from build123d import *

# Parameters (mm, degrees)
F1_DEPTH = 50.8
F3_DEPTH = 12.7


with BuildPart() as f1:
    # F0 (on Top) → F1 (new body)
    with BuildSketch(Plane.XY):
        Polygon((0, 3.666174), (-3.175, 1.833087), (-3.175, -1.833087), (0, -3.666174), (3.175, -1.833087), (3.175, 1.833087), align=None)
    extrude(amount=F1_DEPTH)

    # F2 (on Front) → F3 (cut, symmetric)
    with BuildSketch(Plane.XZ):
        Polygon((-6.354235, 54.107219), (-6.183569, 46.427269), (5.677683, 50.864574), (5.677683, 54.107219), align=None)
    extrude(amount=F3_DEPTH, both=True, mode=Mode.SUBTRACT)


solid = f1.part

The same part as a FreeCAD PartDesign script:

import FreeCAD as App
import Part
import Sketcher
Q = App.Units.Quantity


def add_polygon(sketch, points):
    """Adds a closed chain of lines whose ends are joined by coincident constraints."""
    first, n = sketch.GeometryCount, len(points)
    for a, b in zip(points, points[1:] + points[:1]):
        sketch.addGeometry(Part.LineSegment(App.Vector(*a, 0), App.Vector(*b, 0)), False)
    for i in range(n):
        sketch.addConstraint(Sketcher.Constraint("Coincident", first + i, 2, first + (i + 1) % n, 1))

doc = App.newDocument("Part")
body = doc.addObject("PartDesign::Body", "Body")

# Sketch on XY plane
sketch1 = body.newObject("Sketcher::SketchObject", "Sketch")
sketch1.AttachmentSupport = (doc.getObject("XY_Plane"), [""])
sketch1.MapMode = "FlatFace"
add_polygon(sketch1, [(0, 3.666174), (-3.175, 1.833087), (-3.175, -1.833087), (0, -3.666174), (3.175, -1.833087), (3.175, 1.833087)])  # lines 0-5
sketch1.addConstraint([
    Sketcher.Constraint("Vertical", 1),
    Sketcher.Constraint("Vertical", 4),
    Sketcher.Constraint("Symmetric", 0, 2, 3, 2, -1, 1),
    Sketcher.Constraint("Symmetric", 2, 2, 5, 2, -1, 1),
    Sketcher.Constraint("PointOnObject", 2, 2, -2),
    Sketcher.Constraint("Parallel", 2, 5),
    Sketcher.Constraint("Horizontal", 1, 2, 3, 2),
    Sketcher.Constraint("Angle", 0, Q("-150.000001 deg")),
    Sketcher.Constraint("DistanceX", 1, 2, 3, 2, Q("0.25 in")),
    Sketcher.Constraint("DistanceY", 1, 2, 1, 1, Q("3.666174 mm")),
])
pad1 = body.newObject("PartDesign::Pad", "Pad")
pad1.Profile = sketch1
pad1.Length = Q("2 in")

# Sketch on XZ plane
sketch2 = body.newObject("Sketcher::SketchObject", "Sketch001")
sketch2.AttachmentSupport = (doc.getObject("XZ_Plane"), [""])
sketch2.MapMode = "FlatFace"
add_polygon(sketch2, [(-6.354235, 54.107219), (-6.183569, 46.427269), (5.677683, 50.864574), (5.677683, 54.107219)])  # lines 0-3
sketch2.addConstraint([
    Sketcher.Constraint("Vertical", 2),
    Sketcher.Constraint("Horizontal", 3),
    Sketcher.Constraint("DistanceX", 3, 2, 3, 1, Q("12.031918 mm")),
    Sketcher.Constraint("DistanceY", 2, 1, 2, 2, Q("3.242645 mm")),
    Sketcher.Constraint("DistanceX", 0, 2, -1, 1, Q("6.183569 mm")),
    Sketcher.Constraint("DistanceY", -1, 1, 0, 2, Q("46.427269 mm")),
    Sketcher.Constraint("DistanceY", -1, 1, 2, 2, Q("54.107219 mm")),
    Sketcher.Constraint("Distance", 0, Q("7.681846 mm")),
])
pocket1 = body.newObject("PartDesign::Pocket", "Pocket")
pocket1.Profile = sketch2
pocket1.Length = Q("1 in")
pocket1.Midplane = True

doc.recompute()
